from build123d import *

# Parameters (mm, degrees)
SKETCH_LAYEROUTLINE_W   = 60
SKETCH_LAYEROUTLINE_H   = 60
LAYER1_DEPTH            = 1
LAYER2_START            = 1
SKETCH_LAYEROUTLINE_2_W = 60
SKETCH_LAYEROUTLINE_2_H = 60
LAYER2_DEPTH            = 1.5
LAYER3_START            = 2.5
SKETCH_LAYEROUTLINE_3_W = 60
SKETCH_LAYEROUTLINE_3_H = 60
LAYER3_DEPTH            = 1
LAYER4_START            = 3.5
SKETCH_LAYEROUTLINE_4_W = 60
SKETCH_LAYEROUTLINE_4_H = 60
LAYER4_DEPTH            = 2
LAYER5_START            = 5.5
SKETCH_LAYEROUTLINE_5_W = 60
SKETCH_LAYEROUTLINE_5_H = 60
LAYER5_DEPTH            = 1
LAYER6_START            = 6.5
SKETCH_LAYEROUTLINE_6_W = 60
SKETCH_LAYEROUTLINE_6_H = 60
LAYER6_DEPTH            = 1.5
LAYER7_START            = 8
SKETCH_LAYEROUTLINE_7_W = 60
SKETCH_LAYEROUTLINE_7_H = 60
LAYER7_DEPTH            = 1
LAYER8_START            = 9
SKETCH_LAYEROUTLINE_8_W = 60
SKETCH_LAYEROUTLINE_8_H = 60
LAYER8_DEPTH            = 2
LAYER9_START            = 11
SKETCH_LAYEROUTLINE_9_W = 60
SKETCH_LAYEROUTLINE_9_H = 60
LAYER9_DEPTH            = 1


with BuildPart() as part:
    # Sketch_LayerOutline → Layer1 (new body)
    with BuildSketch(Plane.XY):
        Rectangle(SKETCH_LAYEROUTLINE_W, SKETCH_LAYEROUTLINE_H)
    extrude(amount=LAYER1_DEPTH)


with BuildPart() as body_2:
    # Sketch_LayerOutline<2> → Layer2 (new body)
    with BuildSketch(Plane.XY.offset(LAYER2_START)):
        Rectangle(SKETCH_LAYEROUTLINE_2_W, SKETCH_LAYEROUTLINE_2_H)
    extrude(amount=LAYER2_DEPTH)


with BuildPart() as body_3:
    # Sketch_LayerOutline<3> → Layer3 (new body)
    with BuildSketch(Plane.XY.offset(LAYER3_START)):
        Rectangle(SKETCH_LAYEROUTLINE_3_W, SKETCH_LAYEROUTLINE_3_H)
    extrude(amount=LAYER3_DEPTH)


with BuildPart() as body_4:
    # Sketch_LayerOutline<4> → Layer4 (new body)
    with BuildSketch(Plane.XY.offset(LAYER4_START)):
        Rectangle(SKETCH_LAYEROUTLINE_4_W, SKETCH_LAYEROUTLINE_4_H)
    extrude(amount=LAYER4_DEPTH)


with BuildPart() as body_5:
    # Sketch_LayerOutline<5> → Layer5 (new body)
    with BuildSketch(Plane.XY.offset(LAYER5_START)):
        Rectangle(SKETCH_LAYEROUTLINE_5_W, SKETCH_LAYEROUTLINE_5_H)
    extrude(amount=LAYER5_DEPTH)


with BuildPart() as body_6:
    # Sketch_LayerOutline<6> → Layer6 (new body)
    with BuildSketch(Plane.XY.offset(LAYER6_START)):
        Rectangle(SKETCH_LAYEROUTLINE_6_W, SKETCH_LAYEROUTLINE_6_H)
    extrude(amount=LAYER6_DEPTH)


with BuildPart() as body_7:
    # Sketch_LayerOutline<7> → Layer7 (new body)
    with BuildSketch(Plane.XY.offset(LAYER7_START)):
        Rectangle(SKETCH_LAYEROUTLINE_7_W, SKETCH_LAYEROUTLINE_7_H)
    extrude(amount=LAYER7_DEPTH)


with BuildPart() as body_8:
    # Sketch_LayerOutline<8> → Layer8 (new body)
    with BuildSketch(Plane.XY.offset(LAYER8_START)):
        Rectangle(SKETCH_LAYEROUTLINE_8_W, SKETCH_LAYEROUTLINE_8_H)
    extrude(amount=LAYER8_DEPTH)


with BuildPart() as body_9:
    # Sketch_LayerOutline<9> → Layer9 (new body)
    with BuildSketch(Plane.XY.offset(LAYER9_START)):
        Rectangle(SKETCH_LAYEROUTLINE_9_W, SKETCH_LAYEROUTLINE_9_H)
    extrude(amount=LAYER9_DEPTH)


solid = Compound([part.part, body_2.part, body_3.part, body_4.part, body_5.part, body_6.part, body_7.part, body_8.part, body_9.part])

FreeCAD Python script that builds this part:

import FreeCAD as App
import Part
import Sketcher
Q = App.Units.Quantity

doc = App.newDocument("Part")
params = doc.addObject("Spreadsheet::Sheet", "Params")
for row, (alias, value) in enumerate([
    ("sketch1_width", "60 mm"),
    ("pad1_length", "1 mm"),
    ("sketch2_width", "60 mm"),
    ("pad2_length", "1.5 mm"),
    ("sketch3_width", "60 mm"),
    ("pad3_length", "1 mm"),
    ("sketch4_width", "60 mm"),
    ("pad4_length", "2 mm"),
    ("sketch5_width", "60 mm"),
    ("pad5_length", "1 mm"),
    ("sketch6_width", "60 mm"),
    ("pad6_length", "1.5 mm"),
    ("sketch7_width", "60 mm"),
    ("pad7_length", "1 mm"),
    ("sketch8_width", "60 mm"),
    ("pad8_length", "2 mm"),
    ("sketch9_width", "60 mm"),
    ("pad9_length", "1 mm"),
], start=1):
    params.set(f"A{row}", alias)
    params.set(f"B{row}", "=" + value)
    params.setAlias(f"B{row}", alias)

body = doc.addObject("PartDesign::Body", "Body")

# Sketch on XY plane
sketch1 = body.newObject("Sketcher::SketchObject", "Sketch")
sketch1.AttachmentSupport = (doc.getObject("XY_Plane"), [""])
sketch1.MapMode = "FlatFace"
sketch1.addGeometry(Part.LineSegment(App.Vector(-30, 30, 0), App.Vector(-30, -30, 0)), False)
sketch1.addGeometry(Part.LineSegment(App.Vector(-30, -30, 0), App.Vector(30, -30, 0)), False)
sketch1.addGeometry(Part.LineSegment(App.Vector(30, -30, 0), App.Vector(30, 30, 0)), False)
sketch1.addGeometry(Part.LineSegment(App.Vector(30, 30, 0), App.Vector(-30, 30, 0)), False)
sketch1.addConstraint(Sketcher.Constraint("Coincident", 0, 2, 1, 1))
sketch1.addConstraint(Sketcher.Constraint("Coincident", 1, 2, 2, 1))
sketch1.addConstraint(Sketcher.Constraint("Coincident", 2, 2, 3, 1))
sketch1.addConstraint(Sketcher.Constraint("Coincident", 3, 2, 0, 1))
sketch1.addConstraint(Sketcher.Constraint("Vertical", 0))
sketch1.addConstraint(Sketcher.Constraint("Horizontal", 1))
sketch1.addConstraint(Sketcher.Constraint("Vertical", 2))
sketch1.addConstraint(Sketcher.Constraint("Horizontal", 3))
sketch1.addConstraint(Sketcher.Constraint("Symmetric", 0, 2, 2, 2, -1, 1))
sketch1.addConstraint(Sketcher.Constraint("Equal", 3, 0))
sketch1.addConstraint(Sketcher.Constraint("DistanceX", 1, 1, 1, 2, Q("60 mm")))
sketch1.setExpression("Constraints[10]", "Params.sketch1_width")
pad1 = body.newObject("PartDesign::Pad", "Pad")
pad1.Profile = sketch1
pad1.setExpression("Length", "Params.pad1_length")
body2 = doc.addObject("PartDesign::Body", "Body001")

# Sketch on XY plane
sketch2 = body2.newObject("Sketcher::SketchObject", "Sketch001")
sketch2.AttachmentSupport = (doc.getObject("XY_Plane001"), [""])
sketch2.MapMode = "FlatFace"
sketch2.AttachmentOffset = App.Placement(App.Vector(0, 0, 1), App.Rotation())
sketch2.addGeometry(Part.LineSegment(App.Vector(-30, 30, 0), App.Vector(-30, -30, 0)), False)
sketch2.addGeometry(Part.LineSegment(App.Vector(-30, -30, 0), App.Vector(30, -30, 0)), False)
sketch2.addGeometry(Part.LineSegment(App.Vector(30, -30, 0), App.Vector(30, 30, 0)), False)
sketch2.addGeometry(Part.LineSegment(App.Vector(30, 30, 0), App.Vector(-30, 30, 0)), False)
sketch2.addConstraint(Sketcher.Constraint("Coincident", 0, 2, 1, 1))
sketch2.addConstraint(Sketcher.Constraint("Coincident", 1, 2, 2, 1))
sketch2.addConstraint(Sketcher.Constraint("Coincident", 2, 2, 3, 1))
sketch2.addConstraint(Sketcher.Constraint("Coincident", 3, 2, 0, 1))
sketch2.addConstraint(Sketcher.Constraint("Vertical", 0))
sketch2.addConstraint(Sketcher.Constraint("Horizontal", 1))
sketch2.addConstraint(Sketcher.Constraint("Vertical", 2))
sketch2.addConstraint(Sketcher.Constraint("Horizontal", 3))
sketch2.addConstraint(Sketcher.Constraint("Symmetric", 0, 2, 2, 2, -1, 1))
sketch2.addConstraint(Sketcher.Constraint("Equal", 3, 0))
sketch2.addConstraint(Sketcher.Constraint("DistanceX", 1, 1, 1, 2, Q("60 mm")))
sketch2.setExpression("Constraints[10]", "Params.sketch2_width")
pad2 = body2.newObject("PartDesign::Pad", "Pad001")
pad2.Profile = sketch2
pad2.setExpression("Length", "Params.pad2_length")
body3 = doc.addObject("PartDesign::Body", "Body002")

# Sketch on XY plane
sketch3 = body3.newObject("Sketcher::SketchObject", "Sketch002")
sketch3.AttachmentSupport = (doc.getObject("XY_Plane002"), [""])
sketch3.MapMode = "FlatFace"
sketch3.AttachmentOffset = App.Placement(App.Vector(0, 0, 2.5), App.Rotation())
sketch3.addGeometry(Part.LineSegment(App.Vector(-30, 30, 0), App.Vector(-30, -30, 0)), False)
sketch3.addGeometry(Part.LineSegment(App.Vector(-30, -30, 0), App.Vector(30, -30, 0)), False)
sketch3.addGeometry(Part.LineSegment(App.Vector(30, -30, 0), App.Vector(30, 30, 0)), False)
sketch3.addGeometry(Part.LineSegment(App.Vector(30, 30, 0), App.Vector(-30, 30, 0)), False)
sketch3.addConstraint(Sketcher.Constraint("Coincident", 0, 2, 1, 1))
sketch3.addConstraint(Sketcher.Constraint("Coincident", 1, 2, 2, 1))
sketch3.addConstraint(Sketcher.Constraint("Coincident", 2, 2, 3, 1))
sketch3.addConstraint(Sketcher.Constraint("Coincident", 3, 2, 0, 1))
sketch3.addConstraint(Sketcher.Constraint("Vertical", 0))
sketch3.addConstraint(Sketcher.Constraint("Horizontal", 1))
sketch3.addConstraint(Sketcher.Constraint("Vertical", 2))
sketch3.addConstraint(Sketcher.Constraint("Horizontal", 3))
sketch3.addConstraint(Sketcher.Constraint("Symmetric", 0, 2, 2, 2, -1, 1))
sketch3.addConstraint(Sketcher.Constraint("Equal", 3, 0))
sketch3.addConstraint(Sketcher.Constraint("DistanceX", 1, 1, 1, 2, Q("60 mm")))
sketch3.setExpression("Constraints[10]", "Params.sketch3_width")
pad3 = body3.newObject("PartDesign::Pad", "Pad002")
pad3.Profile = sketch3
pad3.setExpression("Length", "Params.pad3_length")
body4 = doc.addObject("PartDesign::Body", "Body003")

# Sketch on XY plane
sketch4 = body4.newObject("Sketcher::SketchObject", "Sketch003")
sketch4.AttachmentSupport = (doc.getObject("XY_Plane003"), [""])
sketch4.MapMode = "FlatFace"
sketch4.AttachmentOffset = App.Placement(App.Vector(0, 0, 3.5), App.Rotation())
sketch4.addGeometry(Part.LineSegment(App.Vector(-30, 30, 0), App.Vector(-30, -30, 0)), False)
sketch4.addGeometry(Part.LineSegment(App.Vector(-30, -30, 0), App.Vector(30, -30, 0)), False)
sketch4.addGeometry(Part.LineSegment(App.Vector(30, -30, 0), App.Vector(30, 30, 0)), False)
sketch4.addGeometry(Part.LineSegment(App.Vector(30, 30, 0), App.Vector(-30, 30, 0)), False)
sketch4.addConstraint(Sketcher.Constraint("Coincident", 0, 2, 1, 1))
sketch4.addConstraint(Sketcher.Constraint("Coincident", 1, 2, 2, 1))
sketch4.addConstraint(Sketcher.Constraint("Coincident", 2, 2, 3, 1))
sketch4.addConstraint(Sketcher.Constraint("Coincident", 3, 2, 0, 1))
sketch4.addConstraint(Sketcher.Constraint("Vertical", 0))
sketch4.addConstraint(Sketcher.Constraint("Horizontal", 1))
sketch4.addConstraint(Sketcher.Constraint("Vertical", 2))
sketch4.addConstraint(Sketcher.Constraint("Horizontal", 3))
sketch4.addConstraint(Sketcher.Constraint("Symmetric", 0, 2, 2, 2, -1, 1))
sketch4.addConstraint(Sketcher.Constraint("Equal", 3, 0))
sketch4.addConstraint(Sketcher.Constraint("DistanceX", 1, 1, 1, 2, Q("60 mm")))
sketch4.setExpression("Constraints[10]", "Params.sketch4_width")
pad4 = body4.newObject("PartDesign::Pad", "Pad003")
pad4.Profile = sketch4
pad4.setExpression("Length", "Params.pad4_length")
body5 = doc.addObject("PartDesign::Body", "Body004")

# Sketch on XY plane
sketch5 = body5.newObject("Sketcher::SketchObject", "Sketch004")
sketch5.AttachmentSupport = (doc.getObject("XY_Plane004"), [""])
sketch5.MapMode = "FlatFace"
sketch5.AttachmentOffset = App.Placement(App.Vector(0, 0, 5.5), App.Rotation())
sketch5.addGeometry(Part.LineSegment(App.Vector(-30, 30, 0), App.Vector(-30, -30, 0)), False)
sketch5.addGeometry(Part.LineSegment(App.Vector(-30, -30, 0), App.Vector(30, -30, 0)), False)
sketch5.addGeometry(Part.LineSegment(App.Vector(30, -30, 0), App.Vector(30, 30, 0)), False)
sketch5.addGeometry(Part.LineSegment(App.Vector(30, 30, 0), App.Vector(-30, 30, 0)), False)
sketch5.addConstraint(Sketcher.Constraint("Coincident", 0, 2, 1, 1))
sketch5.addConstraint(Sketcher.Constraint("Coincident", 1, 2, 2, 1))
sketch5.addConstraint(Sketcher.Constraint("Coincident", 2, 2, 3, 1))
sketch5.addConstraint(Sketcher.Constraint("Coincident", 3, 2, 0, 1))
sketch5.addConstraint(Sketcher.Constraint("Vertical", 0))
sketch5.addConstraint(Sketcher.Constraint("Horizontal", 1))
sketch5.addConstraint(Sketcher.Constraint("Vertical", 2))
sketch5.addConstraint(Sketcher.Constraint("Horizontal", 3))
sketch5.addConstraint(Sketcher.Constraint("Symmetric", 0, 2, 2, 2, -1, 1))
sketch5.addConstraint(Sketcher.Constraint("Equal", 3, 0))
sketch5.addConstraint(Sketcher.Constraint("DistanceX", 1, 1, 1, 2, Q("60 mm")))
sketch5.setExpression("Constraints[10]", "Params.sketch5_width")
pad5 = body5.newObject("PartDesign::Pad", "Pad004")
pad5.Profile = sketch5
pad5.setExpression("Length", "Params.pad5_length")
body6 = doc.addObject("PartDesign::Body", "Body005")

# Sketch on XY plane
sketch6 = body6.newObject("Sketcher::SketchObject", "Sketch005")
sketch6.AttachmentSupport = (doc.getObject("XY_Plane005"), [""])
sketch6.MapMode = "FlatFace"
sketch6.AttachmentOffset = App.Placement(App.Vector(0, 0, 6.5), App.Rotation())
sketch6.addGeometry(Part.LineSegment(App.Vector(-30, 30, 0), App.Vector(-30, -30, 0)), False)
sketch6.addGeometry(Part.LineSegment(App.Vector(-30, -30, 0), App.Vector(30, -30, 0)), False)
sketch6.addGeometry(Part.LineSegment(App.Vector(30, -30, 0), App.Vector(30, 30, 0)), False)
sketch6.addGeometry(Part.LineSegment(App.Vector(30, 30, 0), App.Vector(-30, 30, 0)), False)
sketch6.addConstraint(Sketcher.Constraint("Coincident", 0, 2, 1, 1))
sketch6.addConstraint(Sketcher.Constraint("Coincident", 1, 2, 2, 1))
sketch6.addConstraint(Sketcher.Constraint("Coincident", 2, 2, 3, 1))
sketch6.addConstraint(Sketcher.Constraint("Coincident", 3, 2, 0, 1))
sketch6.addConstraint(Sketcher.Constraint("Vertical", 0))
sketch6.addConstraint(Sketcher.Constraint("Horizontal", 1))
sketch6.addConstraint(Sketcher.Constraint("Vertical", 2))
sketch6.addConstraint(Sketcher.Constraint("Horizontal", 3))
sketch6.addConstraint(Sketcher.Constraint("Symmetric", 0, 2, 2, 2, -1, 1))
sketch6.addConstraint(Sketcher.Constraint("Equal", 3, 0))
sketch6.addConstraint(Sketcher.Constraint("DistanceX", 1, 1, 1, 2, Q("60 mm")))
sketch6.setExpression("Constraints[10]", "Params.sketch6_width")
pad6 = body6.newObject("PartDesign::Pad", "Pad005")
pad6.Profile = sketch6
pad6.setExpression("Length", "Params.pad6_length")
body7 = doc.addObject("PartDesign::Body", "Body006")

# Sketch on XY plane
sketch7 = body7.newObject("Sketcher::SketchObject", "Sketch006")
sketch7.AttachmentSupport = (doc.getObject("XY_Plane006"), [""])
sketch7.MapMode = "FlatFace"
sketch7.AttachmentOffset = App.Placement(App.Vector(0, 0, 8), App.Rotation())
sketch7.addGeometry(Part.LineSegment(App.Vector(-30, 30, 0), App.Vector(-30, -30, 0)), False)
sketch7.addGeometry(Part.LineSegment(App.Vector(-30, -30, 0), App.Vector(30, -30, 0)), False)
sketch7.addGeometry(Part.LineSegment(App.Vector(30, -30, 0), App.Vector(30, 30, 0)), False)
sketch7.addGeometry(Part.LineSegment(App.Vector(30, 30, 0), App.Vector(-30, 30, 0)), False)
sketch7.addConstraint(Sketcher.Constraint("Coincident", 0, 2, 1, 1))
sketch7.addConstraint(Sketcher.Constraint("Coincident", 1, 2, 2, 1))
sketch7.addConstraint(Sketcher.Constraint("Coincident", 2, 2, 3, 1))
sketch7.addConstraint(Sketcher.Constraint("Coincident", 3, 2, 0, 1))
sketch7.addConstraint(Sketcher.Constraint("Vertical", 0))
sketch7.addConstraint(Sketcher.Constraint("Horizontal", 1))
sketch7.addConstraint(Sketcher.Constraint("Vertical", 2))
sketch7.addConstraint(Sketcher.Constraint("Horizontal", 3))
sketch7.addConstraint(Sketcher.Constraint("Symmetric", 0, 2, 2, 2, -1, 1))
sketch7.addConstraint(Sketcher.Constraint("Equal", 3, 0))
sketch7.addConstraint(Sketcher.Constraint("DistanceX", 1, 1, 1, 2, Q("60 mm")))
sketch7.setExpression("Constraints[10]", "Params.sketch7_width")
pad7 = body7.newObject("PartDesign::Pad", "Pad006")
pad7.Profile = sketch7
pad7.setExpression("Length", "Params.pad7_length")
body8 = doc.addObject("PartDesign::Body", "Body007")

# Sketch on XY plane
sketch8 = body8.newObject("Sketcher::SketchObject", "Sketch007")
sketch8.AttachmentSupport = (doc.getObject("XY_Plane007"), [""])
sketch8.MapMode = "FlatFace"
sketch8.AttachmentOffset = App.Placement(App.Vector(0, 0, 9), App.Rotation())
sketch8.addGeometry(Part.LineSegment(App.Vector(-30, 30, 0), App.Vector(-30, -30, 0)), False)
sketch8.addGeometry(Part.LineSegment(App.Vector(-30, -30, 0), App.Vector(30, -30, 0)), False)
sketch8.addGeometry(Part.LineSegment(App.Vector(30, -30, 0), App.Vector(30, 30, 0)), False)
sketch8.addGeometry(Part.LineSegment(App.Vector(30, 30, 0), App.Vector(-30, 30, 0)), False)
sketch8.addConstraint(Sketcher.Constraint("Coincident", 0, 2, 1, 1))
sketch8.addConstraint(Sketcher.Constraint("Coincident", 1, 2, 2, 1))
sketch8.addConstraint(Sketcher.Constraint("Coincident", 2, 2, 3, 1))
sketch8.addConstraint(Sketcher.Constraint("Coincident", 3, 2, 0, 1))
sketch8.addConstraint(Sketcher.Constraint("Vertical", 0))
sketch8.addConstraint(Sketcher.Constraint("Horizontal", 1))
sketch8.addConstraint(Sketcher.Constraint("Vertical", 2))
sketch8.addConstraint(Sketcher.Constraint("Horizontal", 3))
sketch8.addConstraint(Sketcher.Constraint("Symmetric", 0, 2, 2, 2, -1, 1))
sketch8.addConstraint(Sketcher.Constraint("Equal", 3, 0))
sketch8.addConstraint(Sketcher.Constraint("DistanceX", 1, 1, 1, 2, Q("60 mm")))
sketch8.setExpression("Constraints[10]", "Params.sketch8_width")
pad8 = body8.newObject("PartDesign::Pad", "Pad007")
pad8.Profile = sketch8
pad8.setExpression("Length", "Params.pad8_length")
body9 = doc.addObject("PartDesign::Body", "Body008")

# Sketch on XY plane
sketch9 = body9.newObject("Sketcher::SketchObject", "Sketch008")
sketch9.AttachmentSupport = (doc.getObject("XY_Plane008"), [""])
sketch9.MapMode = "FlatFace"
sketch9.AttachmentOffset = App.Placement(App.Vector(0, 0, 11), App.Rotation())
sketch9.addGeometry(Part.LineSegment(App.Vector(-30, 30, 0), App.Vector(-30, -30, 0)), False)
sketch9.addGeometry(Part.LineSegment(App.Vector(-30, -30, 0), App.Vector(30, -30, 0)), False)
sketch9.addGeometry(Part.LineSegment(App.Vector(30, -30, 0), App.Vector(30, 30, 0)), False)
sketch9.addGeometry(Part.LineSegment(App.Vector(30, 30, 0), App.Vector(-30, 30, 0)), False)
sketch9.addConstraint(Sketcher.Constraint("Coincident", 0, 2, 1, 1))
sketch9.addConstraint(Sketcher.Constraint("Coincident", 1, 2, 2, 1))
sketch9.addConstraint(Sketcher.Constraint("Coincident", 2, 2, 3, 1))
sketch9.addConstraint(Sketcher.Constraint("Coincident", 3, 2, 0, 1))
sketch9.addConstraint(Sketcher.Constraint("Vertical", 0))
sketch9.addConstraint(Sketcher.Constraint("Horizontal", 1))
sketch9.addConstraint(Sketcher.Constraint("Vertical", 2))
sketch9.addConstraint(Sketcher.Constraint("Horizontal", 3))
sketch9.addConstraint(Sketcher.Constraint("Symmetric", 0, 2, 2, 2, -1, 1))
sketch9.addConstraint(Sketcher.Constraint("Equal", 3, 0))
sketch9.addConstraint(Sketcher.Constraint("DistanceX", 1, 1, 1, 2, Q("60 mm")))
sketch9.setExpression("Constraints[10]", "Params.sketch9_width")
pad9 = body9.newObject("PartDesign::Pad", "Pad008")
pad9.Profile = sketch9
pad9.setExpression("Length", "Params.pad9_length")

doc.recompute()
